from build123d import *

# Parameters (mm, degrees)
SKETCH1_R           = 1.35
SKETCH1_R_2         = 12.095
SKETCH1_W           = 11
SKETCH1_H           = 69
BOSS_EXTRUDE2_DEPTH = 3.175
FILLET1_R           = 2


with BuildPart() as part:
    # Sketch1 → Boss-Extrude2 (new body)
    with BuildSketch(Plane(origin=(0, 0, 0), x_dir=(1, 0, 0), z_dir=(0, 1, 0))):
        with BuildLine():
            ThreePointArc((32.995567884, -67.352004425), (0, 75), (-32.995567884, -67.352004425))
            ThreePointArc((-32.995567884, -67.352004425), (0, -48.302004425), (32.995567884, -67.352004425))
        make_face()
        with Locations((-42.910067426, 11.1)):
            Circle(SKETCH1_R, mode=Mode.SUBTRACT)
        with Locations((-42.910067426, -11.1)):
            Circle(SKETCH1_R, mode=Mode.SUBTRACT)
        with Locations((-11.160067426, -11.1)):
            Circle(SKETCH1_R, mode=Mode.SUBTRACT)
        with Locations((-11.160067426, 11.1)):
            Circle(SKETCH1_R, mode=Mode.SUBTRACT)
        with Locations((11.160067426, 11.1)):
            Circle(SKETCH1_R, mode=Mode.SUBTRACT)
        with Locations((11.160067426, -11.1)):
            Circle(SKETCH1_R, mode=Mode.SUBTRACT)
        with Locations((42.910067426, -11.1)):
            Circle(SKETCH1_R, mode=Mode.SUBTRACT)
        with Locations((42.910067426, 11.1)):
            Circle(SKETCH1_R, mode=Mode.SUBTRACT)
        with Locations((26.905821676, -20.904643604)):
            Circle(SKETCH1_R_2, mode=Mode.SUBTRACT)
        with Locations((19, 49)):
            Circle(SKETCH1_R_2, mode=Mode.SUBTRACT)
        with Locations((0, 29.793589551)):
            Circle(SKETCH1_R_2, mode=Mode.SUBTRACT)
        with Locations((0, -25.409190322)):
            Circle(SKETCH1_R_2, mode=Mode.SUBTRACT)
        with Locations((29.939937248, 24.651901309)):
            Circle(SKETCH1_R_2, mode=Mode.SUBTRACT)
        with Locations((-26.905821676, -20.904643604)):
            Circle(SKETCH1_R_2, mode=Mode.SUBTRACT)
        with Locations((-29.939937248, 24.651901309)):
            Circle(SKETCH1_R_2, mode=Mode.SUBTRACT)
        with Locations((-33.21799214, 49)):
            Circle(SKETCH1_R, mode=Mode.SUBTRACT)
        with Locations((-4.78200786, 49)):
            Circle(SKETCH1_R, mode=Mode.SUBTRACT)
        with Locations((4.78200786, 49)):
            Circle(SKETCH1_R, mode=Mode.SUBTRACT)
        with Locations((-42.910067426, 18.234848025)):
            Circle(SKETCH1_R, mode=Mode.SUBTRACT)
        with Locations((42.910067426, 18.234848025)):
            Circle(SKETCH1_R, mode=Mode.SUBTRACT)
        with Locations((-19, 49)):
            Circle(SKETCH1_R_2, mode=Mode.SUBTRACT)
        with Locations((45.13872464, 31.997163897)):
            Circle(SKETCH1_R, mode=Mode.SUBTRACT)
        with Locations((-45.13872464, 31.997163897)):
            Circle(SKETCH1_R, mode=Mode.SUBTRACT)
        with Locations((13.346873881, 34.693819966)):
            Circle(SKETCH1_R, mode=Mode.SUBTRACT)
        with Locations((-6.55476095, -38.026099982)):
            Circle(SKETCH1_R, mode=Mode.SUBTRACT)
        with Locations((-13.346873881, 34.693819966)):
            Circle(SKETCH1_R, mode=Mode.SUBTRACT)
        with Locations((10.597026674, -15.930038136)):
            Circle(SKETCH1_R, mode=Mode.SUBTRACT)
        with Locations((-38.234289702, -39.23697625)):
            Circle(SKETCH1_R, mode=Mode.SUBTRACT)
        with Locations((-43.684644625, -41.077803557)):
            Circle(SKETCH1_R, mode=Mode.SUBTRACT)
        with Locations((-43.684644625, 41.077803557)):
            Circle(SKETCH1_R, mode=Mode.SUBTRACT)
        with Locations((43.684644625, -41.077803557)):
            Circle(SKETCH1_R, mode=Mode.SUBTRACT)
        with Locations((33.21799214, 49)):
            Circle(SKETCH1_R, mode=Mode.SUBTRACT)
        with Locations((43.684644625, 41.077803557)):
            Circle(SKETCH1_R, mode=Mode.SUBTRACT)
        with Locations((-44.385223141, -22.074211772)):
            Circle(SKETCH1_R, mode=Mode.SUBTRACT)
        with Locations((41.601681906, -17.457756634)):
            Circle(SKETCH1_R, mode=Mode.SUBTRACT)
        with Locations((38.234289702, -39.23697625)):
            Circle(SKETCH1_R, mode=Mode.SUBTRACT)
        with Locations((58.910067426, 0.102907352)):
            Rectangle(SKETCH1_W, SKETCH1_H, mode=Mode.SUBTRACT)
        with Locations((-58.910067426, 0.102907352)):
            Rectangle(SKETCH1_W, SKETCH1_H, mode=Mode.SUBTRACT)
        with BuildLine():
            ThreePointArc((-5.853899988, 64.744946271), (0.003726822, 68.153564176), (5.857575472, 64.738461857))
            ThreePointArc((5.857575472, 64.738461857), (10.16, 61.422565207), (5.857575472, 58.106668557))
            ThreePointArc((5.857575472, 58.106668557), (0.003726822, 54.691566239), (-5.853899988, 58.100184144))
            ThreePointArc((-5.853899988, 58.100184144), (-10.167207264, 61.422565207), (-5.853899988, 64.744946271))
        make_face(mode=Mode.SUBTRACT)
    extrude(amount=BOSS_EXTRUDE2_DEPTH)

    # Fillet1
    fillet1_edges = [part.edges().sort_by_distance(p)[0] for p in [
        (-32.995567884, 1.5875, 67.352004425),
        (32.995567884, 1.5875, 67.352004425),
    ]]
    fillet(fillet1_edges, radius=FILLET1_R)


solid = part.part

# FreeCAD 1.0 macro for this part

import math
import FreeCAD as App
import Part
import Sketcher
Q = App.Units.Quantity


def edges_at(feature, points):
    """Names of the edges that pass closest to the given points."""
    edges = feature.Shape.Edges
    near = lambda p: min(range(len(edges)), key=lambda i: edges[i].distToShape(Part.Vertex(*p))[0])
    return sorted({f"Edge{near(p) + 1}" for p in points})


def add_polygon(sketch, points):
    """Adds a closed chain of lines whose ends are joined by coincident constraints."""
    first, n = sketch.GeometryCount, len(points)
    for a, b in zip(points, points[1:] + points[:1]):
        sketch.addGeometry(Part.LineSegment(App.Vector(*a, 0), App.Vector(*b, 0)), False)
    for i in range(n):
        sketch.addConstraint(Sketcher.Constraint("Coincident", first + i, 2, first + (i + 1) % n, 1))

doc = App.newDocument("Part")
body = doc.addObject("PartDesign::Body", "Body")

# Sketch on XZ plane
sketch1 = body.newObject("Sketcher::SketchObject", "Sketch")
sketch1.AttachmentSupport = (doc.getObject("XZ_Plane"), [""])
sketch1.MapMode = "FlatFace"
sketch1.addGeometry(Part.ArcOfCircle(Part.Circle(App.Vector(0, 0, 0), App.Vector(0, 0, 1), 75), math.radians(116), math.radians(424)), False)  # 0
sketch1.addGeometry(Part.ArcOfCircle(Part.Circle(App.Vector(0, 86.4, 0), App.Vector(0, 0, 1), 38.1), math.radians(-150), math.radians(-30)), False)  # 1
sketch1.addGeometry(Part.Circle(App.Vector(-43.7, 41.1, 0), App.Vector(0, 0, 1), 1.4), False)  # 2
sketch1.addGeometry(Part.Circle(App.Vector(-38.2, 39.2, 0), App.Vector(0, 0, 1), 1.4), False)  # 3
sketch1.addGeometry(Part.Circle(App.Vector(-44.4, 22.1, 0), App.Vector(0, 0, 1), 1.4), False)  # 4
sketch1.addGeometry(Part.Circle(App.Vector(-6.6, 38, 0), App.Vector(0, 0, 1), 1.4), False)  # 5
sketch1.addGeometry(Part.Circle(App.Vector(-26.9, 20.9, 0), App.Vector(0, 0, 1), 12.1), False)  # 6
sketch1.addGeometry(Part.Circle(App.Vector(-42.9, 11.1, 0), App.Vector(0, 0, 1), 1.4), False)  # 7
add_polygon(sketch1, [(-53.4, 34.4), (-64.4, 34.4), (-64.4, -34.6), (-53.4, -34.6)])  # lines 8-11
sketch1.addGeometry(Part.Circle(App.Vector(-42.9, -11.1, 0), App.Vector(0, 0, 1), 1.4), False)  # 12
sketch1.addGeometry(Part.Circle(App.Vector(-11.2, 11.1, 0), App.Vector(0, 0, 1), 1.4), False)  # 13
sketch1.addGeometry(Part.Circle(App.Vector(-11.2, -11.1, 0), App.Vector(0, 0, 1), 1.4), False)  # 14
sketch1.addGeometry(Part.Circle(App.Vector(0, 25.4, 0), App.Vector(0, 0, 1), 12.1), False)  # 15
sketch1.addGeometry(Part.Circle(App.Vector(10.6, 15.9, 0), App.Vector(0, 0, 1), 1.4), False)  # 16
sketch1.addGeometry(Part.Circle(App.Vector(26.9, 20.9, 0), App.Vector(0, 0, 1), 12.1), False)  # 17
sketch1.addGeometry(Part.Circle(App.Vector(38.2, 39.2, 0), App.Vector(0, 0, 1), 1.4), False)  # 18
sketch1.addGeometry(Part.Circle(App.Vector(43.7, 41.1, 0), App.Vector(0, 0, 1), 1.4), False)  # 19
sketch1.addGeometry(Part.Circle(App.Vector(41.6, 17.5, 0), App.Vector(0, 0, 1), 1.4), False)  # 20
sketch1.addGeometry(Part.Circle(App.Vector(11.2, 11.1, 0), App.Vector(0, 0, 1), 1.4), False)  # 21
sketch1.addGeometry(Part.Circle(App.Vector(11.2, -11.1, 0), App.Vector(0, 0, 1), 1.4), False)  # 22
sketch1.addGeometry(Part.Circle(App.Vector(42.9, 11.1, 0), App.Vector(0, 0, 1), 1.4), False)  # 23
sketch1.addGeometry(Part.Circle(App.Vector(42.9, -11.1, 0), App.Vector(0, 0, 1), 1.4), False)  # 24
add_polygon(sketch1, [(64.4, 34.4), (53.4, 34.4), (53.4, -34.6), (64.4, -34.6)])  # lines 25-28
sketch1.addGeometry(Part.Circle(App.Vector(-42.9, -18.2, 0), App.Vector(0, 0, 1), 1.4), False)  # 29
sketch1.addGeometry(Part.Circle(App.Vector(-45.1, -32, 0), App.Vector(0, 0, 1), 1.4), False)  # 30
sketch1.addGeometry(Part.Circle(App.Vector(-29.9, -24.7, 0), App.Vector(0, 0, 1), 12.1), False)  # 31
sketch1.addGeometry(Part.Circle(App.Vector(-13.3, -34.7, 0), App.Vector(0, 0, 1), 1.4), False)  # 32
sketch1.addGeometry(Part.Circle(App.Vector(-43.7, -41.1, 0), App.Vector(0, 0, 1), 1.4), False)  # 33
sketch1.addGeometry(Part.Circle(App.Vector(-33.2, -49, 0), App.Vector(0, 0, 1), 1.4), False)  # 34
sketch1.addGeometry(Part.Circle(App.Vector(-19, -49, 0), App.Vector(0, 0, 1), 12.1), False)  # 35
sketch1.addGeometry(Part.Circle(App.Vector(-4.8, -49, 0), App.Vector(0, 0, 1), 1.4), False)  # 36
sketch1.addGeometry(Part.ArcOfCircle(Part.Circle(App.Vector(-6.7, -61.4, 0), App.Vector(0, 0, 1), 3.4), math.radians(75), math.radians(285)), False)  # 37
sketch1.addGeometry(Part.ArcOfCircle(Part.Circle(App.Vector(0, -61.4, 0), App.Vector(0, 0, 1), 6.7), math.radians(-150), math.radians(-30)), False)  # 38
sketch1.addGeometry(Part.ArcOfCircle(Part.Circle(App.Vector(6.7, -61.4, 0), App.Vector(0, 0, 1), 3.4), math.radians(-105), math.radians(105)), False)  # 39
sketch1.addGeometry(Part.ArcOfCircle(Part.Circle(App.Vector(0, -61.4, 0), App.Vector(0, 0, 1), 6.7), math.radians(30), math.radians(150)), False)  # 40
sketch1.addGeometry(Part.Circle(App.Vector(29.9, -24.7, 0), App.Vector(0, 0, 1), 12.1), False)  # 41
sketch1.addGeometry(Part.Circle(App.Vector(0, -29.8, 0), App.Vector(0, 0, 1), 12.1), False)  # 42
sketch1.addGeometry(Part.Circle(App.Vector(13.3, -34.7, 0), App.Vector(0, 0, 1), 1.4), False)  # 43
sketch1.addGeometry(Part.Circle(App.Vector(42.9, -18.2, 0), App.Vector(0, 0, 1), 1.4), False)  # 44
sketch1.addGeometry(Part.Circle(App.Vector(45.1, -32, 0), App.Vector(0, 0, 1), 1.4), False)  # 45
sketch1.addGeometry(Part.Circle(App.Vector(4.8, -49, 0), App.Vector(0, 0, 1), 1.4), False)  # 46
sketch1.addGeometry(Part.Circle(App.Vector(19, -49, 0), App.Vector(0, 0, 1), 12.1), False)  # 47
sketch1.addGeometry(Part.Circle(App.Vector(43.7, -41.1, 0), App.Vector(0, 0, 1), 1.4), False)  # 48
sketch1.addGeometry(Part.Circle(App.Vector(33.2, -49, 0), App.Vector(0, 0, 1), 1.4), False)  # 49
sketch1.addConstraint(Sketcher.Constraint("Coincident", 0, 1, 1, 1))
sketch1.addConstraint(Sketcher.Constraint("Coincident", 1, 2, 0, 2))
sketch1.addConstraint(Sketcher.Constraint("Coincident", 37, 2, 38, 1))
sketch1.addConstraint(Sketcher.Constraint("Coincident", 38, 2, 39, 1))
sketch1.addConstraint(Sketcher.Constraint("Coincident", 39, 2, 40, 1))
sketch1.addConstraint(Sketcher.Constraint("Coincident", 40, 2, 37, 1))
sketch1.addConstraint(Sketcher.Constraint("Horizontal", 8))
sketch1.addConstraint(Sketcher.Constraint("Vertical", 9))
sketch1.addConstraint(Sketcher.Constraint("Horizontal", 10))
sketch1.addConstraint(Sketcher.Constraint("Vertical", 11))
sketch1.addConstraint(Sketcher.Constraint("Horizontal", 25))
sketch1.addConstraint(Sketcher.Constraint("Vertical", 26))
sketch1.addConstraint(Sketcher.Constraint("Horizontal", 27))
sketch1.addConstraint(Sketcher.Constraint("Vertical", 28))
sketch1.addConstraint(Sketcher.Constraint("Coincident", 0, 3, -1, 1))
sketch1.addConstraint(Sketcher.Constraint("Coincident", 40, 3, 38, 3))
sketch1.addConstraint(Sketcher.Constraint("Equal", 2, 3))
sketch1.addConstraint(Sketcher.Constraint("Equal", 3, 4))
sketch1.addConstraint(Sketcher.Constraint("Equal", 4, 5))
sketch1.addConstraint(Sketcher.Constraint("Equal", 5, 7))
sketch1.addConstraint(Sketcher.Constraint("Equal", 7, 12))
sketch1.addConstraint(Sketcher.Constraint("Equal", 12, 13))
sketch1.addConstraint(Sketcher.Constraint("Equal", 13, 14))
sketch1.addConstraint(Sketcher.Constraint("Equal", 6, 15))
sketch1.addConstraint(Sketcher.Constraint("Equal", 14, 16))
sketch1.addConstraint(Sketcher.Constraint("Equal", 15, 17))
sketch1.addConstraint(Sketcher.Constraint("Equal", 16, 18))
sketch1.addConstraint(Sketcher.Constraint("Equal", 18, 19))
sketch1.addConstraint(Sketcher.Constraint("Equal", 19, 20))
sketch1.addConstraint(Sketcher.Constraint("Equal", 20, 21))
sketch1.addConstraint(Sketcher.Constraint("Equal", 21, 22))
sketch1.addConstraint(Sketcher.Constraint("Equal", 22, 23))
sketch1.addConstraint(Sketcher.Constraint("Equal", 23, 24))
sketch1.addConstraint(Sketcher.Constraint("Equal", 24, 29))
sketch1.addConstraint(Sketcher.Constraint("Equal", 29, 30))
sketch1.addConstraint(Sketcher.Constraint("Equal", 17, 31))
sketch1.addConstraint(Sketcher.Constraint("Equal", 30, 32))
sketch1.addConstraint(Sketcher.Constraint("Equal", 32, 33))
sketch1.addConstraint(Sketcher.Constraint("Equal", 33, 34))
sketch1.addConstraint(Sketcher.Constraint("Equal", 31, 35))
sketch1.addConstraint(Sketcher.Constraint("Equal", 34, 36))
sketch1.addConstraint(Sketcher.Constraint("Equal", 38, 40))
sketch1.addConstraint(Sketcher.Constraint("Equal", 35, 41))
sketch1.addConstraint(Sketcher.Constraint("Equal", 41, 42))
sketch1.addConstraint(Sketcher.Constraint("Equal", 36, 43))
sketch1.addConstraint(Sketcher.Constraint("Equal", 43, 44))
sketch1.addConstraint(Sketcher.Constraint("Equal", 44, 45))
sketch1.addConstraint(Sketcher.Constraint("Equal", 45, 46))
sketch1.addConstraint(Sketcher.Constraint("Equal", 42, 47))
sketch1.addConstraint(Sketcher.Constraint("Equal", 46, 48))
sketch1.addConstraint(Sketcher.Constraint("Equal", 48, 49))
sketch1.addConstraint(Sketcher.Constraint("Symmetric", 14, 3, 21, 3, -1, 1))
sketch1.addConstraint(Sketcher.Constraint("Symmetric", 13, 3, 22, 3, -1, 1))
sketch1.addConstraint(Sketcher.Constraint("Symmetric", 12, 3, 23, 3, -1, 1))
sketch1.addConstraint(Sketcher.Constraint("Symmetric", 7, 3, 24, 3, -1, 1))
sketch1.addConstraint(Sketcher.Constraint("Symmetric", 19, 3, 33, 3, -1, 1))
sketch1.addConstraint(Sketcher.Constraint("Symmetric", 2, 3, 48, 3, -1, 1))
sketch1.addConstraint(Sketcher.Constraint("Symmetric", 6, 3, 17, 3, -2))
sketch1.addConstraint(Sketcher.Constraint("Symmetric", 3, 3, 18, 3, -2))
sketch1.addConstraint(Sketcher.Constraint("Symmetric", 2, 3, 19, 3, -2))
sketch1.addConstraint(Sketcher.Constraint("Symmetric", 13, 3, 21, 3, -2))
sketch1.addConstraint(Sketcher.Constraint("Symmetric", 7, 3, 23, 3, -2))
sketch1.addConstraint(Sketcher.Constraint("Symmetric", 37, 3, 39, 3, -2))
sketch1.addConstraint(Sketcher.Constraint("Symmetric", 31, 3, 41, 3, -2))
sketch1.addConstraint(Sketcher.Constraint("Symmetric", 32, 3, 43, 3, -2))
sketch1.addConstraint(Sketcher.Constraint("Symmetric", 29, 3, 44, 3, -2))
sketch1.addConstraint(Sketcher.Constraint("Symmetric", 30, 3, 45, 3, -2))
sketch1.addConstraint(Sketcher.Constraint("Symmetric", 36, 3, 46, 3, -2))
sketch1.addConstraint(Sketcher.Constraint("Symmetric", 35, 3, 47, 3, -2))
sketch1.addConstraint(Sketcher.Constraint("Symmetric", 34, 3, 49, 3, -2))
sketch1.addConstraint(Sketcher.Constraint("Symmetric", 11, 2, 25, 2, -2))
sketch1.addConstraint(Sketcher.Constraint("Symmetric", 9, 2, 27, 2, -2))
sketch1.addConstraint(Sketcher.Constraint("PointOnObject", 1, 3, -2))
sketch1.addConstraint(Sketcher.Constraint("PointOnObject", 15, 3, -2))
sketch1.addConstraint(Sketcher.Constraint("PointOnObject", 38, 3, -2))
sketch1.addConstraint(Sketcher.Constraint("PointOnObject", 42, 3, -2))
sketch1.addConstraint(Sketcher.Constraint("Horizontal", 7, 3, 13, 3))
sketch1.addConstraint(Sketcher.Constraint("Horizontal", 34, 3, 35, 3))
sketch1.addConstraint(Sketcher.Constraint("Horizontal", 35, 3, 36, 3))
sketch1.addConstraint(Sketcher.Constraint("Horizontal", 37, 3, 38, 3))
sketch1.addConstraint(Sketcher.Constraint("Vertical", 12, 3, 29, 3))
sketch1.addConstraint(Sketcher.Constraint("Radius", 0, Q("75 mm")))
sketch1.addConstraint(Sketcher.Constraint("Diameter", 2, Q("2.7 mm")))
sketch1.addConstraint(Sketcher.Constraint("Radius", 1, Q("38.1 mm")))
sketch1.addConstraint(Sketcher.Constraint("Diameter", 6, Q("24.19 mm")))
sketch1.addConstraint(Sketcher.Constraint("DistanceX", 8, 2, 8, 1, Q("11 mm")))
sketch1.addConstraint(Sketcher.Constraint("DistanceY", 9, 2, 9, 1, Q("69 mm")))
sketch1.addConstraint(Sketcher.Constraint("DistanceY", 34, 3, -1, 1, Q("49 mm")))
sketch1.addConstraint(Sketcher.Constraint("DistanceX", 35, 3, -1, 1, Q("19 mm")))
sketch1.addConstraint(Sketcher.Constraint("Radius", 38, Q("6.731 mm")))
sketch1.addConstraint(Sketcher.Constraint("Radius", 39, Q("3.429 mm")))
sketch1.addConstraint(Sketcher.Constraint("DistanceY", -1, 1, 7, 3, Q("11.1 mm")))
sketch1.addConstraint(Sketcher.Constraint("DistanceX", 8, 2, 7, 3, Q("21.5 mm")))
sketch1.addConstraint(Sketcher.Constraint("DistanceX", 7, 3, 13, 3, Q("31.75 mm")))
sketch1.addConstraint(Sketcher.Constraint("DistanceY", 0, 1, 1, 3, Q("19.05 mm")))
sketch1.addConstraint(Sketcher.Constraint("DistanceX", 37, 3, -1, 1, Q("6.731 mm")))
sketch1.addConstraint(Sketcher.Constraint("Radius", 37, Q("3.436207 mm")))
sketch1.addConstraint(Sketcher.Constraint("DistanceY", -1, 1, 5, 3, Q("38.0261 mm")))
sketch1.addConstraint(Sketcher.Constraint("DistanceY", 31, 3, -1, 1, Q("24.651901 mm")))
sketch1.addConstraint(Sketcher.Constraint("DistanceY", 2, 3, 1, 3, Q("45.324201 mm")))
sketch1.addConstraint(Sketcher.Constraint("DistanceX", 4, 3, 6, 3, Q("17.479401 mm")))
sketch1.addConstraint(Sketcher.Constraint("DistanceX", 30, 3, 4, 3, Q("0.753501 mm")))
sketch1.addConstraint(Sketcher.Constraint("DistanceX", 3, 3, -1, 1, Q("38.23429 mm")))
sketch1.addConstraint(Sketcher.Constraint("DistanceY", -1, 1, 4, 3, Q("22.074212 mm")))
sketch1.addConstraint(Sketcher.Constraint("DistanceX", 5, 3, -1, 1, Q("6.554761 mm")))
sketch1.addConstraint(Sketcher.Constraint("DistanceX", 6, 3, -1, 1, Q("26.905822 mm")))
sketch1.addConstraint(Sketcher.Constraint("DistanceY", -1, 1, 15, 3, Q("25.40919 mm")))
sketch1.addConstraint(Sketcher.Constraint("DistanceY", -1, 1, 16, 3, Q("15.930038 mm")))
sketch1.addConstraint(Sketcher.Constraint("DistanceX", -1, 1, 20, 3, Q("41.601682 mm")))
sketch1.addConstraint(Sketcher.Constraint("DistanceY", 29, 3, -1, 1, Q("18.234848 mm")))
sketch1.addConstraint(Sketcher.Constraint("DistanceY", 32, 3, -1, 1, Q("34.69382 mm")))
sketch1.addConstraint(Sketcher.Constraint("DistanceY", 42, 3, -1, 1, Q("29.79359 mm")))
sketch1.addConstraint(Sketcher.Constraint("DistanceY", 38, 2, -1, 1, Q("64.738462 mm")))
sketch1.addConstraint(Sketcher.Constraint("DistanceY", 3, 3, 1, 3, Q("47.165028 mm")))
sketch1.addConstraint(Sketcher.Constraint("DistanceX", 4, 3, 2, 3, Q("0.700579 mm")))
sketch1.addConstraint(Sketcher.Constraint("DistanceY", 6, 3, 4, 3, Q("1.169568 mm")))
sketch1.addConstraint(Sketcher.Constraint("DistanceX", 13, 3, 17, 3, Q("38.065889 mm")))
sketch1.addConstraint(Sketcher.Constraint("DistanceY", 20, 3, 18, 3, Q("21.77922 mm")))
sketch1.addConstraint(Sketcher.Constraint("DistanceX", 16, 3, 21, 3, Q("0.563041 mm")))
sketch1.addConstraint(Sketcher.Constraint("DistanceX", 29, 3, 31, 3, Q("12.97013 mm")))
sketch1.addConstraint(Sketcher.Constraint("DistanceX", 30, 3, 32, 3, Q("31.791851 mm")))
sketch1.addConstraint(Sketcher.Constraint("DistanceY", 33, 3, 30, 3, Q("9.08064 mm")))
sketch1.addConstraint(Sketcher.Constraint("DistanceX", 34, 3, 32, 3, Q("19.871118 mm")))
sketch1.addConstraint(Sketcher.Constraint("DistanceX", 31, 3, 36, 3, Q("25.157929 mm")))
sketch1.addConstraint(Sketcher.Constraint("DistanceY", 8, 2, 2, 3, Q("6.680711 mm")))
pad1 = body.newObject("PartDesign::Pad", "Pad")
pad1.Profile = sketch1
pad1.Length = 3.175
pad1.Reversed = True
doc.recompute()

fillet = body.newObject("PartDesign::Fillet", "Fillet")
fillet.Base = (pad1, edges_at(pad1, [(-32.996, 1.587, 67.352), (32.996, 1.587, 67.352)]))
fillet.Radius = 2

doc.recompute()
